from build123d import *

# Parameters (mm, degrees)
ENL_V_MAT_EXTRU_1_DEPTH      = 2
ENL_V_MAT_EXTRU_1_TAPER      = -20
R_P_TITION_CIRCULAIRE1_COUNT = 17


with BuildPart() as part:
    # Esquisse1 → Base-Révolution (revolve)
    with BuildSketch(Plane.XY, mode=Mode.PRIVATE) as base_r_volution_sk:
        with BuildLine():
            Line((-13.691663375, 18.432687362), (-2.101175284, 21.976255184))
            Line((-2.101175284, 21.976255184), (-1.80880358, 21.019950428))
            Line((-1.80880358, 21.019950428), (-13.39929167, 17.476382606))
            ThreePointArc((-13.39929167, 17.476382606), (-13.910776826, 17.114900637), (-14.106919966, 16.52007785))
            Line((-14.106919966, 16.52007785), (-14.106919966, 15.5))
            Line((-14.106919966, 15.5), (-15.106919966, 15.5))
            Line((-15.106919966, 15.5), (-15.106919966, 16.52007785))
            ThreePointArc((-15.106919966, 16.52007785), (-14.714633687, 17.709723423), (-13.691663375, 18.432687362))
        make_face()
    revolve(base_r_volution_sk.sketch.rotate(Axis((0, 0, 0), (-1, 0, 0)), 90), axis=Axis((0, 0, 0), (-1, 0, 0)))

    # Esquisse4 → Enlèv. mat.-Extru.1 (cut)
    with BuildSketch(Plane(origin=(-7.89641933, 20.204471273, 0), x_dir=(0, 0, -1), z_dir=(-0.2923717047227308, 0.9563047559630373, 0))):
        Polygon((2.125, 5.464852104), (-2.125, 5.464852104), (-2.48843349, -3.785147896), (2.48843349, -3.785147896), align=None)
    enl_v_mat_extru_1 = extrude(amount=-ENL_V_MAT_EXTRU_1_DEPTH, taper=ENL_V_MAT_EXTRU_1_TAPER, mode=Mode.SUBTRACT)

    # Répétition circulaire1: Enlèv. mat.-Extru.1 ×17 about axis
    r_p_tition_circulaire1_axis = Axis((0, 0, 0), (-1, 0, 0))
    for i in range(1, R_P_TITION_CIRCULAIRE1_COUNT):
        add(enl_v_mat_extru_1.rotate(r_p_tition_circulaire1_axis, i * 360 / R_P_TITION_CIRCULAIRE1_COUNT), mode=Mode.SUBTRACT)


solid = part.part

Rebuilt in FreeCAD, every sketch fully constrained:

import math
import FreeCAD as App
import Part
import Sketcher
Q = App.Units.Quantity


def add_polygon(sketch, points):
    """Adds a closed chain of lines whose ends are joined by coincident constraints."""
    first, n = sketch.GeometryCount, len(points)
    for a, b in zip(points, points[1:] + points[:1]):
        sketch.addGeometry(Part.LineSegment(App.Vector(*a, 0), App.Vector(*b, 0)), False)
    for i in range(n):
        sketch.addConstraint(Sketcher.Constraint("Coincident", first + i, 2, first + (i + 1) % n, 1))

doc = App.newDocument("Part")
body = doc.addObject("PartDesign::Body", "Body")

sketch1 = body.newObject("Sketcher::SketchObject", "Sketch")
sketch1.AttachmentSupport = (doc.getObject("XY_Plane"), [""])
sketch1.MapMode = "FlatFace"
sketch1.addGeometry(Part.LineSegment(App.Vector(-2.1, 22, 0), App.Vector(-13.7, 18.4, 0)), False)
sketch1.addGeometry(Part.ArcOfCircle(Part.Circle(App.Vector(-13.1, 16.5, 0), App.Vector(0, 0, 1), 2), math.radians(107), math.radians(180)), False)
sketch1.addGeometry(Part.LineSegment(App.Vector(-15.1, 16.5, 0), App.Vector(-15.1, 15.5, 0)), False)
sketch1.addGeometry(Part.LineSegment(App.Vector(-15.1, 15.5, 0), App.Vector(-14.1, 15.5, 0)), False)
sketch1.addGeometry(Part.LineSegment(App.Vector(-14.1, 15.5, 0), App.Vector(-14.1, 16.5, 0)), False)
sketch1.addGeometry(Part.ArcOfCircle(Part.Circle(App.Vector(-13.1, 16.5, 0), App.Vector(0, 0, 1), 1), math.radians(107), math.radians(180)), False)
sketch1.addGeometry(Part.LineSegment(App.Vector(-13.4, 17.5, 0), App.Vector(-1.8, 21, 0)), False)
sketch1.addGeometry(Part.LineSegment(App.Vector(-1.8, 21, 0), App.Vector(-2.1, 22, 0)), False)
sketch1.addConstraint(Sketcher.Constraint("Tangent", 0, 2, 1, 1))
sketch1.addConstraint(Sketcher.Constraint("Tangent", 1, 2, 2, 1))
sketch1.addConstraint(Sketcher.Constraint("Coincident", 2, 2, 3, 1))
sketch1.addConstraint(Sketcher.Constraint("Coincident", 3, 2, 4, 1))
sketch1.addConstraint(Sketcher.Constraint("Tangent", 4, 2, 5, 2))
sketch1.addConstraint(Sketcher.Constraint("Tangent", 5, 1, 6, 1))
sketch1.addConstraint(Sketcher.Constraint("Coincident", 6, 2, 7, 1))
sketch1.addConstraint(Sketcher.Constraint("Coincident", 7, 2, 0, 1))
sketch1.addConstraint(Sketcher.Constraint("Vertical", 2))
sketch1.addConstraint(Sketcher.Constraint("Horizontal", 3))
sketch1.addConstraint(Sketcher.Constraint("Vertical", 4))
sketch1.addConstraint(Sketcher.Constraint("Coincident", 5, 3, 1, 3))
sketch1.addConstraint(Sketcher.Constraint("Parallel", 0, 6))
sketch1.addConstraint(Sketcher.Constraint("Perpendicular", 6, 7))
sketch1.addConstraint(Sketcher.Constraint("Radius", 1, 2.0))
sketch1.addConstraint(Sketcher.Constraint("Radius", 5, 1.0))
sketch1.addConstraint(Sketcher.Constraint("Angle", 0, Q("-163 deg")))
sketch1.addConstraint(Sketcher.Constraint("DistanceY", -1, 1, 2, 2, 15.5))
sketch1.addConstraint(Sketcher.Constraint("DistanceY", 2, 2, 2, 1, 1.020078))
sketch1.addConstraint(Sketcher.Constraint("DistanceX", 1, 3, -1, 1, 13.10692))
sketch1.addConstraint(Sketcher.Constraint("DistanceY", -1, 1, 6, 2, 21.01995))
revolution = body.newObject("PartDesign::Revolution", "Revolution")
revolution.Profile = sketch1
revolution.ReferenceAxis = (sketch1, ["H_Axis"])
revolution.Angle = 360

sketch2 = body.newObject("Sketcher::SketchObject", "Sketch001")
sketch2.Placement = App.Placement(App.Vector(-7.896419, 20.204471, 0), App.Rotation(App.Vector(0, 0, -1), App.Vector(-0.956304756, -0.292371705, 0), App.Vector(-0.292371705, 0.956304756, 0), "ZXY"))
add_polygon(sketch2, [(2.1, 5.5), (-2.1, 5.5), (-2.5, -3.8), (2.5, -3.8)])
sketch2.addConstraint(Sketcher.Constraint("Horizontal", 0))
sketch2.addConstraint(Sketcher.Constraint("Horizontal", 2))
sketch2.addConstraint(Sketcher.Constraint("Equal", 1, 3))
sketch2.addConstraint(Sketcher.Constraint("DistanceX", 0, 2, 0, 1, 4.25))
sketch2.addConstraint(Sketcher.Constraint("Angle", 1, Q("-92.25 deg")))
sketch2.addConstraint(Sketcher.Constraint("DistanceY", 1, 2, 0, 2, 9.25))
sketch2.addConstraint(Sketcher.Constraint("DistanceX", 0, 2, -1, 1, 2.125))
sketch2.addConstraint(Sketcher.Constraint("DistanceY", -1, 1, 0, 2, 5.464852))
pocket1 = body.newObject("PartDesign::Pocket", "Pocket")
pocket1.Profile = sketch2
pocket1.Length = 2
pocket1.TaperAngle = 20
doc.recompute()

polarpattern = body.newObject("PartDesign::PolarPattern", "PolarPattern")
polarpattern.Originals = [pocket1]
polarpattern.Axis = (doc.getObject("X_Axis"), [""])
polarpattern.Angle = 360
polarpattern.Occurrences = 17
body.Tip = polarpattern

doc.recompute()
